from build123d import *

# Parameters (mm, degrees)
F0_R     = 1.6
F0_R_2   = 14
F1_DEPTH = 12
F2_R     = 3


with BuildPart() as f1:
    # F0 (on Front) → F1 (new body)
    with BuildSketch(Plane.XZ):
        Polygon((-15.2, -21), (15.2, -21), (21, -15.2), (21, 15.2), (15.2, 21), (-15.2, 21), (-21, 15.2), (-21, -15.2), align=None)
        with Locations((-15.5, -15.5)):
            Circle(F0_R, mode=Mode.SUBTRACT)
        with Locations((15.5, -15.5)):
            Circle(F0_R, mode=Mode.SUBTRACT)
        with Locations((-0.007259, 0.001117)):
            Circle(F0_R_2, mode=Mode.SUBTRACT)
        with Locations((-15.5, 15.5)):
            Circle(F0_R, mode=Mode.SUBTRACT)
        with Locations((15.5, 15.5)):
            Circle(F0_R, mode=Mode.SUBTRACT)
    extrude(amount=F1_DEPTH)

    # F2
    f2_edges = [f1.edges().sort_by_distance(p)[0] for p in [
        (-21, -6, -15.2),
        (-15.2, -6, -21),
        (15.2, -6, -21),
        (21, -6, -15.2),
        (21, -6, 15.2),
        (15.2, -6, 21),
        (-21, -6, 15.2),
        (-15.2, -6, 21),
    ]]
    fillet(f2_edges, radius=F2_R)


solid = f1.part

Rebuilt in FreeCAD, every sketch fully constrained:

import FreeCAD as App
import Part
import Sketcher
from FreeCAD import Vector


def edges_at(feature, points):
    """Names of the edges that pass closest to the given points."""
    edges = feature.Shape.Edges
    near = lambda p: min(range(len(edges)), key=lambda i: edges[i].distToShape(Part.Vertex(*p))[0])
    return sorted({f"Edge{near(p) + 1}" for p in points})

doc = App.newDocument("Part")
body = doc.addObject("PartDesign::Body", "Body")

sketch1 = doc.addObject("Sketcher::SketchObject", "Sketch")
body.addObject(sketch1)
sketch1.AttachmentSupport = (doc.XZ_Plane, [""])
sketch1.MapMode = "FlatFace"
sketch1.addGeometry([
    Part.LineSegment(Vector(-15.2, -21, 0), Vector(15.2, -21, 0)),
    Part.LineSegment(Vector(15.2, -21, 0), Vector(21, -15.2, 0)),
    Part.LineSegment(Vector(21, -15.2, 0), Vector(21, 15.2, 0)),
    Part.LineSegment(Vector(21, 15.2, 0), Vector(15.2, 21, 0)),
    Part.LineSegment(Vector(15.2, 21, 0), Vector(-15.2, 21, 0)),
    Part.LineSegment(Vector(-15.2, 21, 0), Vector(-21, 15.2, 0)),
    Part.LineSegment(Vector(-21, 15.2, 0), Vector(-21, -15.2, 0)),
    Part.LineSegment(Vector(-21, -15.2, 0), Vector(-15.2, -21, 0)),
    Part.Circle(Vector(-15.5, -15.5, 0), Vector(0, 0, 1), 1.6),
    Part.Circle(Vector(15.5, -15.5, 0), Vector(0, 0, 1), 1.6),
    Part.Circle(Vector(0, 0, 0), Vector(0, 0, 1), 14),
    Part.Circle(Vector(-15.5, 15.5, 0), Vector(0, 0, 1), 1.6),
    Part.Circle(Vector(15.5, 15.5, 0), Vector(0, 0, 1), 1.6),
], False)
sketch1.addConstraint([
    Sketcher.Constraint("Coincident", 0, 2, 1, 1),
    Sketcher.Constraint("Coincident", 1, 2, 2, 1),
    Sketcher.Constraint("Coincident", 2, 2, 3, 1),
    Sketcher.Constraint("Coincident", 3, 2, 4, 1),
    Sketcher.Constraint("Coincident", 4, 2, 5, 1),
    Sketcher.Constraint("Coincident", 5, 2, 6, 1),
    Sketcher.Constraint("Coincident", 6, 2, 7, 1),
    Sketcher.Constraint("Coincident", 7, 2, 0, 1),
    Sketcher.Constraint("Horizontal", 0),
    Sketcher.Constraint("Vertical", 2),
    Sketcher.Constraint("Horizontal", 4),
    Sketcher.Constraint("Vertical", 6),
    Sketcher.Constraint("Equal", 8, 9),
    Sketcher.Constraint("Equal", 9, 11),
    Sketcher.Constraint("Equal", 11, 12),
    Sketcher.Constraint("Symmetric", 9, 3, 11, 3, -1, 1),
    Sketcher.Constraint("Symmetric", 8, 3, 12, 3, -1, 1),
    Sketcher.Constraint("Symmetric", 0, 2, 4, 2, -1, 1),
    Sketcher.Constraint("Symmetric", 1, 2, 5, 2, -1, 1),
    Sketcher.Constraint("Symmetric", 8, 3, 9, 3, -2),
    Sketcher.Constraint("Perpendicular", 1, 3),
    Sketcher.Constraint("Perpendicular", 5, 7),
    Sketcher.Constraint("Horizontal", 2, 2, 5, 2),
    Sketcher.Constraint("Horizontal", 1, 2, 6, 2),
    Sketcher.Constraint("Vertical", 0, 2, 3, 2),
    Sketcher.Constraint("Equal", 4, 2),
    Sketcher.Constraint("Diameter", 10, 28.0),
    Sketcher.Constraint("Diameter", 8, 3.2),
    Sketcher.Constraint("DistanceX", 0, 1, 0, 2, 30.4),
    Sketcher.Constraint("DistanceY", 0, 2, -1, 1, 21.0),
    Sketcher.Constraint("DistanceX", 8, 3, 9, 3, 31.0),
    Sketcher.Constraint("DistanceY", 8, 3, 11, 3, 31.0),
    Sketcher.Constraint("DistanceX", 10, 3, -1, 1, 0.007259),
    Sketcher.Constraint("DistanceY", -1, 1, 10, 3, 0.001117),
])
pad1 = doc.addObject("PartDesign::Pad", "Pad")
body.addObject(pad1)
pad1.Profile = sketch1
pad1.Length = 12
doc.recompute()

fillet = doc.addObject("PartDesign::Fillet", "Fillet")
body.addObject(fillet)
fillet.Base = (pad1, edges_at(pad1, [
    (-21, -6, -15.2),
    (-15.2, -6, -21),
    (15.2, -6, -21),
    (21, -6, -15.2),
    (21, -6, 15.2),
    (15.2, -6, 21),
    (-21, -6, 15.2),
    (-15.2, -6, 21),
]))
fillet.Radius = 3

doc.recompute()
